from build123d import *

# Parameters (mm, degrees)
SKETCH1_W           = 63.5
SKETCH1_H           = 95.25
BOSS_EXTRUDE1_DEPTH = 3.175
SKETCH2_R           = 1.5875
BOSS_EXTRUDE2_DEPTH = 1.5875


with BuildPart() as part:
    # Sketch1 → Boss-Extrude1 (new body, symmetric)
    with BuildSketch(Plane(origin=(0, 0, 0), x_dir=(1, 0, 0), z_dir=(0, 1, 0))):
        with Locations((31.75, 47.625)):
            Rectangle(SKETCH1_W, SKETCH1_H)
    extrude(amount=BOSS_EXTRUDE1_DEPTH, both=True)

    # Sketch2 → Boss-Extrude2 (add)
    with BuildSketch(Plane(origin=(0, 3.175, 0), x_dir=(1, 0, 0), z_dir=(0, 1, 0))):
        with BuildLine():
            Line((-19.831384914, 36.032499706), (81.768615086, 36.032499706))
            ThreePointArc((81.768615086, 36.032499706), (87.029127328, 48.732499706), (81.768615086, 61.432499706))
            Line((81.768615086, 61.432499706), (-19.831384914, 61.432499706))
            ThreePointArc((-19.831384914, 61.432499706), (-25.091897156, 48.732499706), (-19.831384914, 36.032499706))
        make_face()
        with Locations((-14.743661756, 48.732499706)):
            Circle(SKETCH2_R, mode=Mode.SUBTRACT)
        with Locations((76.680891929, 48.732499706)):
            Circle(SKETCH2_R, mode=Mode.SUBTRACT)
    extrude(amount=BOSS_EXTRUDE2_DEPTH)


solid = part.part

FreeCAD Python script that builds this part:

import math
import FreeCAD as App
import Part
import Sketcher
from FreeCAD import Vector
Q = App.Units.Quantity


def add_polygon(sketch, points):
    """Adds a closed chain of lines whose ends are joined by coincident constraints."""
    first, n = sketch.GeometryCount, len(points)
    for a, b in zip(points, points[1:] + points[:1]):
        sketch.addGeometry(Part.LineSegment(App.Vector(*a, 0), App.Vector(*b, 0)), False)
    for i in range(n):
        sketch.addConstraint(Sketcher.Constraint("Coincident", first + i, 2, first + (i + 1) % n, 1))

doc = App.newDocument("Part")
body = doc.addObject("PartDesign::Body", "Body")

# Sketch on XZ plane
sketch1 = body.newObject("Sketcher::SketchObject", "Sketch")
sketch1.AttachmentSupport = (doc.getObject("XZ_Plane"), [""])
sketch1.MapMode = "FlatFace"
add_polygon(sketch1, [(0, -95), (0, 0), (64, 0), (64, -95)])  # lines 0-3
sketch1.addConstraint([
    Sketcher.Constraint("Vertical", 0),
    Sketcher.Constraint("Horizontal", 1),
    Sketcher.Constraint("Vertical", 2),
    Sketcher.Constraint("Horizontal", 3),
    Sketcher.Constraint("Coincident", 0, 2, -1, 1),
    Sketcher.Constraint("DistanceX", 1, 1, 1, 2, Q("2.5 in")),
    Sketcher.Constraint("DistanceY", 0, 1, 0, 2, Q("3.75 in")),
])
pad1 = body.newObject("PartDesign::Pad", "Pad")
pad1.Profile = sketch1
pad1.Length = Q("0.25 in")
pad1.Midplane = True

# Sketch on XZ plane
sketch2 = body.newObject("Sketcher::SketchObject", "Sketch001")
sketch2.AttachmentSupport = (doc.getObject("XZ_Plane"), [""])
sketch2.MapMode = "FlatFace"
sketch2.AttachmentOffset = App.Placement(Vector(0, 0, -0.125 * 25.4), App.Rotation())
sketch2.addGeometry([
    Part.LineSegment(Vector(-19.8, -36, 0), Vector(81.8, -36, 0)),  # 0
    Part.ArcOfCircle(Part.Circle(Vector(69.1, -48.7, 0), Vector(0, 0, 1), 18), math.radians(-45), math.radians(45)),  # 1
    Part.LineSegment(Vector(81.8, -61.4, 0), Vector(-19.8, -61.4, 0)),  # 2
    Part.ArcOfCircle(Part.Circle(Vector(-7.1, -48.7, 0), Vector(0, 0, 1), 18), math.radians(135), math.radians(225)),  # 3
    Part.Circle(Vector(-14.7, -48.7, 0), Vector(0, 0, 1), 1.6),  # 4
    Part.Circle(Vector(76.7, -48.7, 0), Vector(0, 0, 1), 1.6),  # 5
], False)
sketch2.addConstraint([
    Sketcher.Constraint("Coincident", 0, 2, 1, 2),
    Sketcher.Constraint("Coincident", 1, 1, 2, 1),
    Sketcher.Constraint("Coincident", 2, 2, 3, 2),
    Sketcher.Constraint("Coincident", 3, 1, 0, 1),
    Sketcher.Constraint("Horizontal", 0),
    Sketcher.Constraint("Horizontal", 2),
    Sketcher.Constraint("Equal", 1, 3),
    Sketcher.Constraint("Equal", 4, 5),
    Sketcher.Constraint("Horizontal", 1, 3, 3, 3),
    Sketcher.Constraint("Horizontal", 3, 3, 4, 3),
    Sketcher.Constraint("Horizontal", 4, 3, 5, 3),
    Sketcher.Constraint("Vertical", 0, 2, 1, 1),
    Sketcher.Constraint("DistanceX", 0, 1, 0, 2, Q("4 in")),
    Sketcher.Constraint("Diameter", 4, Q("0.125 in")),
    Sketcher.Constraint("DistanceX", 3, 3, 1, 3, Q("3 in")),
    Sketcher.Constraint("DistanceY", 1, 1, 0, 2, Q("1 in")),
    Sketcher.Constraint("DistanceY", 1, 3, -1, 1, 48.7325),
    Sketcher.Constraint("DistanceX", 4, 3, -1, 1, 14.743662),
    Sketcher.Constraint("DistanceX", -1, 1, 5, 3, 76.680892),
    Sketcher.Constraint("DistanceX", -1, 1, 1, 3, 69.068615),
])
pad2 = body.newObject("PartDesign::Pad", "Pad001")
pad2.Profile = sketch2
pad2.Length = Q("0.0625 in")
pad2.Reversed = True

doc.recompute()
